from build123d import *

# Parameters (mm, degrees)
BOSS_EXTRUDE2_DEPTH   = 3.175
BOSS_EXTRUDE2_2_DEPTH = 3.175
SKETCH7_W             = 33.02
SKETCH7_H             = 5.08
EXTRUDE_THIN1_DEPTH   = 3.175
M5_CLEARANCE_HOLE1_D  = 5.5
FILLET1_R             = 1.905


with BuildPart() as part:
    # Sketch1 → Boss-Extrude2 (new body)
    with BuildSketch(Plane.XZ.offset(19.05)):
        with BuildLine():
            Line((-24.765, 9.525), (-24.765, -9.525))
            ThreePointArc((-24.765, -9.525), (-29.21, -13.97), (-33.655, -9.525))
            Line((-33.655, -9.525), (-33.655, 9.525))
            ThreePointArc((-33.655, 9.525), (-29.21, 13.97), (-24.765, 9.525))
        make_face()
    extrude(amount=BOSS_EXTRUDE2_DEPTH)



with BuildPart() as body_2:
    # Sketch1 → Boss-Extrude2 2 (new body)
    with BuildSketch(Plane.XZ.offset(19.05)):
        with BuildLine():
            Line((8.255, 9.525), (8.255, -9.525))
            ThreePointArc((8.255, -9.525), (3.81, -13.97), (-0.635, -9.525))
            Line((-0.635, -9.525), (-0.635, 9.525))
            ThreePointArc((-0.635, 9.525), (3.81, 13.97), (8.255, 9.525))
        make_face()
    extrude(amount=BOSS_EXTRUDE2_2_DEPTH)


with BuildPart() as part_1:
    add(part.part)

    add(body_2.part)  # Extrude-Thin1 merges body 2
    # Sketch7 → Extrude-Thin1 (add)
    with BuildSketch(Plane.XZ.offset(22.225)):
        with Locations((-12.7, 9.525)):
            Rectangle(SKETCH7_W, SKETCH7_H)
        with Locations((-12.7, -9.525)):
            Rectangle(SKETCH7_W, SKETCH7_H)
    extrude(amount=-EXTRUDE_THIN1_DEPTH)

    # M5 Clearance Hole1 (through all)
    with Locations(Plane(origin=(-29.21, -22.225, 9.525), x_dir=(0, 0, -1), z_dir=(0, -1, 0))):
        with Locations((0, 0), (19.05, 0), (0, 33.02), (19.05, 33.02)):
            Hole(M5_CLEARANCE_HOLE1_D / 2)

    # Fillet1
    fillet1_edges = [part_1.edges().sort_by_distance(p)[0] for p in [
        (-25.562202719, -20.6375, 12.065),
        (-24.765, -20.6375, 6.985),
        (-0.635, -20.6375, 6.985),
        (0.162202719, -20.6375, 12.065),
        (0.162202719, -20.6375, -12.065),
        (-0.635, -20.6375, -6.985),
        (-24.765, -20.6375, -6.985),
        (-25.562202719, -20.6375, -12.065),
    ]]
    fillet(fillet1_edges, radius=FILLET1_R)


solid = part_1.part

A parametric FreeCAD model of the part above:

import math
import FreeCAD as App
import Part
import Sketcher
Q = App.Units.Quantity


def edges_at(feature, points):
    """Names of the edges that pass closest to the given points."""
    edges = feature.Shape.Edges
    near = lambda p: min(range(len(edges)), key=lambda i: edges[i].distToShape(Part.Vertex(*p))[0])
    return sorted({f"Edge{near(p) + 1}" for p in points})


def add_polygon(sketch, points):
    """Adds a closed chain of lines whose ends are joined by coincident constraints."""
    first, n = sketch.GeometryCount, len(points)
    for a, b in zip(points, points[1:] + points[:1]):
        sketch.addGeometry(Part.LineSegment(App.Vector(*a, 0), App.Vector(*b, 0)), False)
    for i in range(n):
        sketch.addConstraint(Sketcher.Constraint("Coincident", first + i, 2, first + (i + 1) % n, 1))

doc = App.newDocument("Part")
body = doc.addObject("PartDesign::Body", "Body")

# Sketch on XZ plane
sketch1 = body.newObject("Sketcher::SketchObject", "Sketch")
sketch1.AttachmentSupport = (doc.getObject("XZ_Plane"), [""])
sketch1.MapMode = "FlatFace"
sketch1.AttachmentOffset = App.Placement(App.Vector(0, 0, 0.75 * 25.4), App.Rotation())
sketch1.addGeometry([
    Part.LineSegment(App.Vector(-24.8, -9.5, 0), App.Vector(-24.8, 9.5, 0)),
    Part.ArcOfCircle(Part.Circle(App.Vector(-29.2, 9.5, 0), App.Vector(0, 0, 1), 4.4), math.radians(0), math.radians(180)),
    Part.LineSegment(App.Vector(-33.7, 9.5, 0), App.Vector(-33.7, -9.5, 0)),
    Part.ArcOfCircle(Part.Circle(App.Vector(-29.2, -9.5, 0), App.Vector(0, 0, 1), 4.4), math.radians(180), math.radians(360)),
], False)
sketch1.addConstraint([
    Sketcher.Constraint("Tangent", 0, 2, 1, 1),
    Sketcher.Constraint("Tangent", 1, 2, 2, 1),
    Sketcher.Constraint("Tangent", 2, 2, 3, 1),
    Sketcher.Constraint("Tangent", 3, 2, 0, 1),
    Sketcher.Constraint("Vertical", 0),
    Sketcher.Constraint("Vertical", 2),
    Sketcher.Constraint("Radius", 1, Q("0.175 in")),
    Sketcher.Constraint("DistanceY", 0, 1, 0, 2, Q("0.75 in")),
    Sketcher.Constraint("DistanceX", 1, 3, -1, 1, Q("1.15 in")),
    Sketcher.Constraint("DistanceY", -1, 1, 1, 3, Q("0.375 in")),
])
pad1 = body.newObject("PartDesign::Pad", "Pad")
pad1.Profile = sketch1
pad1.Length = Q("0.125 in")
body2 = doc.addObject("PartDesign::Body", "Body001")

# Sketch on XZ plane
sketch2 = body2.newObject("Sketcher::SketchObject", "Sketch001")
sketch2.AttachmentSupport = (doc.getObject("XZ_Plane001"), [""])
sketch2.MapMode = "FlatFace"
sketch2.AttachmentOffset = App.Placement(App.Vector(0, 0, 0.75 * 25.4), App.Rotation())
sketch2.addGeometry([
    Part.LineSegment(App.Vector(8.3, -9.5, 0), App.Vector(8.3, 9.5, 0)),
    Part.ArcOfCircle(Part.Circle(App.Vector(3.8, 9.5, 0), App.Vector(0, 0, 1), 4.4), math.radians(0), math.radians(180)),
    Part.LineSegment(App.Vector(-0.6, 9.5, 0), App.Vector(-0.6, -9.5, 0)),
    Part.ArcOfCircle(Part.Circle(App.Vector(3.8, -9.5, 0), App.Vector(0, 0, 1), 4.4), math.radians(180), math.radians(360)),
], False)
sketch2.addConstraint([
    Sketcher.Constraint("Tangent", 0, 2, 1, 1),
    Sketcher.Constraint("Tangent", 1, 2, 2, 1),
    Sketcher.Constraint("Tangent", 2, 2, 3, 1),
    Sketcher.Constraint("Tangent", 3, 2, 0, 1),
    Sketcher.Constraint("Vertical", 0),
    Sketcher.Constraint("Vertical", 2),
    Sketcher.Constraint("Radius", 1, Q("0.175 in")),
    Sketcher.Constraint("DistanceY", 0, 1, 0, 2, Q("0.75 in")),
    Sketcher.Constraint("DistanceX", -1, 1, 1, 3, Q("0.15 in")),
    Sketcher.Constraint("DistanceY", -1, 1, 1, 3, Q("0.375 in")),
])
pad2 = body2.newObject("PartDesign::Pad", "Pad001")
pad2.Profile = sketch2
pad2.Length = Q("0.125 in")
body.AllowCompound = True
doc.recompute()

boolean = body.newObject("PartDesign::Boolean", "Boolean")
boolean.Type = "Fuse"
boolean.addObjects([body2])

# Sketch on XZ plane
sketch3 = body.newObject("Sketcher::SketchObject", "Sketch002")
sketch3.AttachmentSupport = (doc.getObject("XZ_Plane"), [""])
sketch3.MapMode = "FlatFace"
sketch3.AttachmentOffset = App.Placement(App.Vector(0, 0, 0.875 * 25.4), App.Rotation())
add_polygon(sketch3, [(-29, 12), (-29, 7), (4, 7), (4, 12)])  # lines 0-3
add_polygon(sketch3, [(-29, -7), (-29, -12), (4, -12), (4, -7)])  # lines 4-7
sketch3.addConstraint([
    Sketcher.Constraint("Vertical", 0),
    Sketcher.Constraint("Horizontal", 1),
    Sketcher.Constraint("Vertical", 2),
    Sketcher.Constraint("Horizontal", 3),
    Sketcher.Constraint("Vertical", 4),
    Sketcher.Constraint("Horizontal", 5),
    Sketcher.Constraint("Vertical", 6),
    Sketcher.Constraint("Horizontal", 7),
    Sketcher.Constraint("Symmetric", 3, 2, 4, 2, -1),
    Sketcher.Constraint("Symmetric", 1, 2, 6, 2, -1),
    Sketcher.Constraint("DistanceX", 1, 1, 1, 2, Q("1.3 in")),
    Sketcher.Constraint("DistanceY", 0, 2, 0, 1, Q("0.2 in")),
    Sketcher.Constraint("DistanceX", 0, 2, -1, 1, Q("1.15 in")),
    Sketcher.Constraint("DistanceY", 4, 2, 0, 2, Q("0.75 in")),
])
pad3 = body.newObject("PartDesign::Pad", "Pad002")
pad3.Profile = sketch3
pad3.Length = Q("0.125 in")
pad3.Reversed = True

# Sketch on XZ plane
sketch4 = body.newObject("Sketcher::SketchObject", "Sketch003")
sketch4.AttachmentSupport = (doc.getObject("XZ_Plane"), [""])
sketch4.MapMode = "FlatFace"
sketch4.AttachmentOffset = App.Placement(App.Vector(0, 0, 0.875 * 25.4), App.Rotation())
sketch4.addGeometry([
    Part.Circle(App.Vector(-29.2, 9.5, 0), App.Vector(0, 0, 1), 2.8),
    Part.Circle(App.Vector(-29.2, -9.5, 0), App.Vector(0, 0, 1), 2.8),
    Part.Circle(App.Vector(3.8, 9.5, 0), App.Vector(0, 0, 1), 2.8),
    Part.Circle(App.Vector(3.8, -9.5, 0), App.Vector(0, 0, 1), 2.8),
], False)
sketch4.addConstraint([
    Sketcher.Constraint("Equal", 0, 1),
    Sketcher.Constraint("Equal", 1, 2),
    Sketcher.Constraint("Equal", 2, 3),
    Sketcher.Constraint("Symmetric", 0, 3, 1, 3, -1),
    Sketcher.Constraint("Symmetric", 2, 3, 3, 3, -1),
    Sketcher.Constraint("Horizontal", 0, 3, 2, 3),
    Sketcher.Constraint("DistanceX", 0, 3, 2, 3, Q("1.3 in")),
    Sketcher.Constraint("Diameter", 0, 5.5),
    Sketcher.Constraint("DistanceX", 0, 3, -1, 1, Q("1.15 in")),
    Sketcher.Constraint("DistanceY", 1, 3, 0, 3, Q("0.75 in")),
])
doc.recompute()
hole = body.newObject("PartDesign::Hole", "Hole")
hole.Profile = sketch4
hole.ThreadType = "None"
hole.Diameter = 5.5
hole.DepthType = "ThroughAll"
doc.recompute()

fillet = body.newObject("PartDesign::Fillet", "Fillet")
fillet.Base = (hole, edges_at(hole, [
    (-25.562, -20.637, 12.065),
    (-24.765, -20.637, 6.985),
    (-0.635, -20.637, 6.985),
    (0.162, -20.637, 12.065),
    (0.162, -20.637, -12.065),
    (-0.635, -20.637, -6.985),
    (-24.765, -20.637, -6.985),
    (-25.562, -20.637, -12.065),
]))
fillet.Radius = Q("0.075 in")

doc.recompute()
